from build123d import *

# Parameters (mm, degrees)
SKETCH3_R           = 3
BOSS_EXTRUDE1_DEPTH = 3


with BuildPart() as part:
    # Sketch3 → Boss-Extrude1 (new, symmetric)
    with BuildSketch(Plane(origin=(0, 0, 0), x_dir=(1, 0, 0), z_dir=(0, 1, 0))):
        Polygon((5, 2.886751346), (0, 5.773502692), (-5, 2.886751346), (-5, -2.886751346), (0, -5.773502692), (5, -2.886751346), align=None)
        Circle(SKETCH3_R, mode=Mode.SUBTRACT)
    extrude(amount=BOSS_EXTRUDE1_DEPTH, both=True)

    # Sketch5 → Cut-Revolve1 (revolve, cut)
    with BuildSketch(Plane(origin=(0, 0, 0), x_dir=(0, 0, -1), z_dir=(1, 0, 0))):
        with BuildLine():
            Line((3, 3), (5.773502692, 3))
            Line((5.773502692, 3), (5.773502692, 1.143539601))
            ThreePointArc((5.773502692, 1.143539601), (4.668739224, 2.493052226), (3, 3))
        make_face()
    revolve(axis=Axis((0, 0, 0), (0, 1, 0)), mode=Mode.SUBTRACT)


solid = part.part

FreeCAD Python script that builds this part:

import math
import FreeCAD as App
import Part
import Sketcher

V = App.Vector
Q = App.Units.Quantity


def add_polygon(sketch, points):
    """Adds a closed chain of lines whose ends are joined by coincident constraints."""
    first, n = sketch.GeometryCount, len(points)
    for a, b in zip(points, points[1:] + points[:1]):
        sketch.addGeometry(Part.LineSegment(App.Vector(*a, 0), App.Vector(*b, 0)), False)
    for i in range(n):
        sketch.addConstraint(Sketcher.Constraint("Coincident", first + i, 2, first + (i + 1) % n, 1))

doc = App.newDocument("Part")
body = doc.addObject("PartDesign::Body", "Body")

sketch1 = doc.addObject("Sketcher::SketchObject", "Sketch")
body.addObject(sketch1)
sketch1.AttachmentSupport = (doc.XZ_Plane, [""])
sketch1.MapMode = "FlatFace"
add_polygon(sketch1, [(5, -2.9), (0, -5.8), (-5, -2.9), (-5, 2.9), (0, 5.8), (5, 2.9)])
sketch1.addGeometry(Part.Circle(V(0, 0, 0), V(0, 0, 1), 3), False)
sketch1.addConstraint(Sketcher.Constraint("Vertical", 2))
sketch1.addConstraint(Sketcher.Constraint("Vertical", 5))
sketch1.addConstraint(Sketcher.Constraint("Coincident", 6, 3, -1, 1))
sketch1.addConstraint(Sketcher.Constraint("Symmetric", 0, 2, 3, 2, -1, 1))
sketch1.addConstraint(Sketcher.Constraint("Symmetric", 1, 2, 4, 2, -1, 1))
sketch1.addConstraint(Sketcher.Constraint("PointOnObject", 0, 2, -2))
sketch1.addConstraint(Sketcher.Constraint("Parallel", 0, 3))
sketch1.addConstraint(Sketcher.Constraint("Horizontal", 2, 2, 4, 2))
sketch1.addConstraint(Sketcher.Constraint("Diameter", 6, 6.0))
sketch1.addConstraint(Sketcher.Constraint("Angle", 0, Q("-150 deg")))
sketch1.addConstraint(Sketcher.Constraint("DistanceX", 1, 2, -1, 1, 5.0))
sketch1.addConstraint(Sketcher.Constraint("DistanceY", 2, 1, 2, 2, 5.773503))
pad1 = doc.addObject("PartDesign::Pad", "Pad")
body.addObject(pad1)
pad1.Profile = sketch1
pad1.Length = 6
pad1.Midplane = True

sketch2 = doc.addObject("Sketcher::SketchObject", "Sketch001")
body.addObject(sketch2)
sketch2.AttachmentSupport = (doc.YZ_Plane, [""])
sketch2.MapMode = "FlatFace"
sketch2.addGeometry(Part.LineSegment(V(3, -5.8, 0), V(3, -3, 0)), False)
sketch2.addGeometry(Part.ArcOfCircle(Part.Circle(V(0, -3, 0), V(0, 0, 1), 3), math.radians(-68), math.radians(0)), False)
sketch2.addGeometry(Part.LineSegment(V(1.1, -5.8, 0), V(3, -5.8, 0)), False)
sketch2.addConstraint(Sketcher.Constraint("Tangent", 0, 2, 1, 2))
sketch2.addConstraint(Sketcher.Constraint("Coincident", 1, 1, 2, 1))
sketch2.addConstraint(Sketcher.Constraint("Coincident", 2, 2, 0, 1))
sketch2.addConstraint(Sketcher.Constraint("Vertical", 0))
sketch2.addConstraint(Sketcher.Constraint("Horizontal", 2))
sketch2.addConstraint(Sketcher.Constraint("PointOnObject", 1, 3, -2))
sketch2.addConstraint(Sketcher.Constraint("Radius", 1, 3.0))
sketch2.addConstraint(Sketcher.Constraint("DistanceY", 1, 3, -1, 1, 3.0))
sketch2.addConstraint(Sketcher.Constraint("DistanceX", 2, 1, 2, 2, 1.85646))
groove = doc.addObject("PartDesign::Groove", "Groove")
body.addObject(groove)
groove.Profile = sketch2
groove.ReferenceAxis = (sketch2, ["H_Axis"])
groove.Angle = 360

doc.recompute()
